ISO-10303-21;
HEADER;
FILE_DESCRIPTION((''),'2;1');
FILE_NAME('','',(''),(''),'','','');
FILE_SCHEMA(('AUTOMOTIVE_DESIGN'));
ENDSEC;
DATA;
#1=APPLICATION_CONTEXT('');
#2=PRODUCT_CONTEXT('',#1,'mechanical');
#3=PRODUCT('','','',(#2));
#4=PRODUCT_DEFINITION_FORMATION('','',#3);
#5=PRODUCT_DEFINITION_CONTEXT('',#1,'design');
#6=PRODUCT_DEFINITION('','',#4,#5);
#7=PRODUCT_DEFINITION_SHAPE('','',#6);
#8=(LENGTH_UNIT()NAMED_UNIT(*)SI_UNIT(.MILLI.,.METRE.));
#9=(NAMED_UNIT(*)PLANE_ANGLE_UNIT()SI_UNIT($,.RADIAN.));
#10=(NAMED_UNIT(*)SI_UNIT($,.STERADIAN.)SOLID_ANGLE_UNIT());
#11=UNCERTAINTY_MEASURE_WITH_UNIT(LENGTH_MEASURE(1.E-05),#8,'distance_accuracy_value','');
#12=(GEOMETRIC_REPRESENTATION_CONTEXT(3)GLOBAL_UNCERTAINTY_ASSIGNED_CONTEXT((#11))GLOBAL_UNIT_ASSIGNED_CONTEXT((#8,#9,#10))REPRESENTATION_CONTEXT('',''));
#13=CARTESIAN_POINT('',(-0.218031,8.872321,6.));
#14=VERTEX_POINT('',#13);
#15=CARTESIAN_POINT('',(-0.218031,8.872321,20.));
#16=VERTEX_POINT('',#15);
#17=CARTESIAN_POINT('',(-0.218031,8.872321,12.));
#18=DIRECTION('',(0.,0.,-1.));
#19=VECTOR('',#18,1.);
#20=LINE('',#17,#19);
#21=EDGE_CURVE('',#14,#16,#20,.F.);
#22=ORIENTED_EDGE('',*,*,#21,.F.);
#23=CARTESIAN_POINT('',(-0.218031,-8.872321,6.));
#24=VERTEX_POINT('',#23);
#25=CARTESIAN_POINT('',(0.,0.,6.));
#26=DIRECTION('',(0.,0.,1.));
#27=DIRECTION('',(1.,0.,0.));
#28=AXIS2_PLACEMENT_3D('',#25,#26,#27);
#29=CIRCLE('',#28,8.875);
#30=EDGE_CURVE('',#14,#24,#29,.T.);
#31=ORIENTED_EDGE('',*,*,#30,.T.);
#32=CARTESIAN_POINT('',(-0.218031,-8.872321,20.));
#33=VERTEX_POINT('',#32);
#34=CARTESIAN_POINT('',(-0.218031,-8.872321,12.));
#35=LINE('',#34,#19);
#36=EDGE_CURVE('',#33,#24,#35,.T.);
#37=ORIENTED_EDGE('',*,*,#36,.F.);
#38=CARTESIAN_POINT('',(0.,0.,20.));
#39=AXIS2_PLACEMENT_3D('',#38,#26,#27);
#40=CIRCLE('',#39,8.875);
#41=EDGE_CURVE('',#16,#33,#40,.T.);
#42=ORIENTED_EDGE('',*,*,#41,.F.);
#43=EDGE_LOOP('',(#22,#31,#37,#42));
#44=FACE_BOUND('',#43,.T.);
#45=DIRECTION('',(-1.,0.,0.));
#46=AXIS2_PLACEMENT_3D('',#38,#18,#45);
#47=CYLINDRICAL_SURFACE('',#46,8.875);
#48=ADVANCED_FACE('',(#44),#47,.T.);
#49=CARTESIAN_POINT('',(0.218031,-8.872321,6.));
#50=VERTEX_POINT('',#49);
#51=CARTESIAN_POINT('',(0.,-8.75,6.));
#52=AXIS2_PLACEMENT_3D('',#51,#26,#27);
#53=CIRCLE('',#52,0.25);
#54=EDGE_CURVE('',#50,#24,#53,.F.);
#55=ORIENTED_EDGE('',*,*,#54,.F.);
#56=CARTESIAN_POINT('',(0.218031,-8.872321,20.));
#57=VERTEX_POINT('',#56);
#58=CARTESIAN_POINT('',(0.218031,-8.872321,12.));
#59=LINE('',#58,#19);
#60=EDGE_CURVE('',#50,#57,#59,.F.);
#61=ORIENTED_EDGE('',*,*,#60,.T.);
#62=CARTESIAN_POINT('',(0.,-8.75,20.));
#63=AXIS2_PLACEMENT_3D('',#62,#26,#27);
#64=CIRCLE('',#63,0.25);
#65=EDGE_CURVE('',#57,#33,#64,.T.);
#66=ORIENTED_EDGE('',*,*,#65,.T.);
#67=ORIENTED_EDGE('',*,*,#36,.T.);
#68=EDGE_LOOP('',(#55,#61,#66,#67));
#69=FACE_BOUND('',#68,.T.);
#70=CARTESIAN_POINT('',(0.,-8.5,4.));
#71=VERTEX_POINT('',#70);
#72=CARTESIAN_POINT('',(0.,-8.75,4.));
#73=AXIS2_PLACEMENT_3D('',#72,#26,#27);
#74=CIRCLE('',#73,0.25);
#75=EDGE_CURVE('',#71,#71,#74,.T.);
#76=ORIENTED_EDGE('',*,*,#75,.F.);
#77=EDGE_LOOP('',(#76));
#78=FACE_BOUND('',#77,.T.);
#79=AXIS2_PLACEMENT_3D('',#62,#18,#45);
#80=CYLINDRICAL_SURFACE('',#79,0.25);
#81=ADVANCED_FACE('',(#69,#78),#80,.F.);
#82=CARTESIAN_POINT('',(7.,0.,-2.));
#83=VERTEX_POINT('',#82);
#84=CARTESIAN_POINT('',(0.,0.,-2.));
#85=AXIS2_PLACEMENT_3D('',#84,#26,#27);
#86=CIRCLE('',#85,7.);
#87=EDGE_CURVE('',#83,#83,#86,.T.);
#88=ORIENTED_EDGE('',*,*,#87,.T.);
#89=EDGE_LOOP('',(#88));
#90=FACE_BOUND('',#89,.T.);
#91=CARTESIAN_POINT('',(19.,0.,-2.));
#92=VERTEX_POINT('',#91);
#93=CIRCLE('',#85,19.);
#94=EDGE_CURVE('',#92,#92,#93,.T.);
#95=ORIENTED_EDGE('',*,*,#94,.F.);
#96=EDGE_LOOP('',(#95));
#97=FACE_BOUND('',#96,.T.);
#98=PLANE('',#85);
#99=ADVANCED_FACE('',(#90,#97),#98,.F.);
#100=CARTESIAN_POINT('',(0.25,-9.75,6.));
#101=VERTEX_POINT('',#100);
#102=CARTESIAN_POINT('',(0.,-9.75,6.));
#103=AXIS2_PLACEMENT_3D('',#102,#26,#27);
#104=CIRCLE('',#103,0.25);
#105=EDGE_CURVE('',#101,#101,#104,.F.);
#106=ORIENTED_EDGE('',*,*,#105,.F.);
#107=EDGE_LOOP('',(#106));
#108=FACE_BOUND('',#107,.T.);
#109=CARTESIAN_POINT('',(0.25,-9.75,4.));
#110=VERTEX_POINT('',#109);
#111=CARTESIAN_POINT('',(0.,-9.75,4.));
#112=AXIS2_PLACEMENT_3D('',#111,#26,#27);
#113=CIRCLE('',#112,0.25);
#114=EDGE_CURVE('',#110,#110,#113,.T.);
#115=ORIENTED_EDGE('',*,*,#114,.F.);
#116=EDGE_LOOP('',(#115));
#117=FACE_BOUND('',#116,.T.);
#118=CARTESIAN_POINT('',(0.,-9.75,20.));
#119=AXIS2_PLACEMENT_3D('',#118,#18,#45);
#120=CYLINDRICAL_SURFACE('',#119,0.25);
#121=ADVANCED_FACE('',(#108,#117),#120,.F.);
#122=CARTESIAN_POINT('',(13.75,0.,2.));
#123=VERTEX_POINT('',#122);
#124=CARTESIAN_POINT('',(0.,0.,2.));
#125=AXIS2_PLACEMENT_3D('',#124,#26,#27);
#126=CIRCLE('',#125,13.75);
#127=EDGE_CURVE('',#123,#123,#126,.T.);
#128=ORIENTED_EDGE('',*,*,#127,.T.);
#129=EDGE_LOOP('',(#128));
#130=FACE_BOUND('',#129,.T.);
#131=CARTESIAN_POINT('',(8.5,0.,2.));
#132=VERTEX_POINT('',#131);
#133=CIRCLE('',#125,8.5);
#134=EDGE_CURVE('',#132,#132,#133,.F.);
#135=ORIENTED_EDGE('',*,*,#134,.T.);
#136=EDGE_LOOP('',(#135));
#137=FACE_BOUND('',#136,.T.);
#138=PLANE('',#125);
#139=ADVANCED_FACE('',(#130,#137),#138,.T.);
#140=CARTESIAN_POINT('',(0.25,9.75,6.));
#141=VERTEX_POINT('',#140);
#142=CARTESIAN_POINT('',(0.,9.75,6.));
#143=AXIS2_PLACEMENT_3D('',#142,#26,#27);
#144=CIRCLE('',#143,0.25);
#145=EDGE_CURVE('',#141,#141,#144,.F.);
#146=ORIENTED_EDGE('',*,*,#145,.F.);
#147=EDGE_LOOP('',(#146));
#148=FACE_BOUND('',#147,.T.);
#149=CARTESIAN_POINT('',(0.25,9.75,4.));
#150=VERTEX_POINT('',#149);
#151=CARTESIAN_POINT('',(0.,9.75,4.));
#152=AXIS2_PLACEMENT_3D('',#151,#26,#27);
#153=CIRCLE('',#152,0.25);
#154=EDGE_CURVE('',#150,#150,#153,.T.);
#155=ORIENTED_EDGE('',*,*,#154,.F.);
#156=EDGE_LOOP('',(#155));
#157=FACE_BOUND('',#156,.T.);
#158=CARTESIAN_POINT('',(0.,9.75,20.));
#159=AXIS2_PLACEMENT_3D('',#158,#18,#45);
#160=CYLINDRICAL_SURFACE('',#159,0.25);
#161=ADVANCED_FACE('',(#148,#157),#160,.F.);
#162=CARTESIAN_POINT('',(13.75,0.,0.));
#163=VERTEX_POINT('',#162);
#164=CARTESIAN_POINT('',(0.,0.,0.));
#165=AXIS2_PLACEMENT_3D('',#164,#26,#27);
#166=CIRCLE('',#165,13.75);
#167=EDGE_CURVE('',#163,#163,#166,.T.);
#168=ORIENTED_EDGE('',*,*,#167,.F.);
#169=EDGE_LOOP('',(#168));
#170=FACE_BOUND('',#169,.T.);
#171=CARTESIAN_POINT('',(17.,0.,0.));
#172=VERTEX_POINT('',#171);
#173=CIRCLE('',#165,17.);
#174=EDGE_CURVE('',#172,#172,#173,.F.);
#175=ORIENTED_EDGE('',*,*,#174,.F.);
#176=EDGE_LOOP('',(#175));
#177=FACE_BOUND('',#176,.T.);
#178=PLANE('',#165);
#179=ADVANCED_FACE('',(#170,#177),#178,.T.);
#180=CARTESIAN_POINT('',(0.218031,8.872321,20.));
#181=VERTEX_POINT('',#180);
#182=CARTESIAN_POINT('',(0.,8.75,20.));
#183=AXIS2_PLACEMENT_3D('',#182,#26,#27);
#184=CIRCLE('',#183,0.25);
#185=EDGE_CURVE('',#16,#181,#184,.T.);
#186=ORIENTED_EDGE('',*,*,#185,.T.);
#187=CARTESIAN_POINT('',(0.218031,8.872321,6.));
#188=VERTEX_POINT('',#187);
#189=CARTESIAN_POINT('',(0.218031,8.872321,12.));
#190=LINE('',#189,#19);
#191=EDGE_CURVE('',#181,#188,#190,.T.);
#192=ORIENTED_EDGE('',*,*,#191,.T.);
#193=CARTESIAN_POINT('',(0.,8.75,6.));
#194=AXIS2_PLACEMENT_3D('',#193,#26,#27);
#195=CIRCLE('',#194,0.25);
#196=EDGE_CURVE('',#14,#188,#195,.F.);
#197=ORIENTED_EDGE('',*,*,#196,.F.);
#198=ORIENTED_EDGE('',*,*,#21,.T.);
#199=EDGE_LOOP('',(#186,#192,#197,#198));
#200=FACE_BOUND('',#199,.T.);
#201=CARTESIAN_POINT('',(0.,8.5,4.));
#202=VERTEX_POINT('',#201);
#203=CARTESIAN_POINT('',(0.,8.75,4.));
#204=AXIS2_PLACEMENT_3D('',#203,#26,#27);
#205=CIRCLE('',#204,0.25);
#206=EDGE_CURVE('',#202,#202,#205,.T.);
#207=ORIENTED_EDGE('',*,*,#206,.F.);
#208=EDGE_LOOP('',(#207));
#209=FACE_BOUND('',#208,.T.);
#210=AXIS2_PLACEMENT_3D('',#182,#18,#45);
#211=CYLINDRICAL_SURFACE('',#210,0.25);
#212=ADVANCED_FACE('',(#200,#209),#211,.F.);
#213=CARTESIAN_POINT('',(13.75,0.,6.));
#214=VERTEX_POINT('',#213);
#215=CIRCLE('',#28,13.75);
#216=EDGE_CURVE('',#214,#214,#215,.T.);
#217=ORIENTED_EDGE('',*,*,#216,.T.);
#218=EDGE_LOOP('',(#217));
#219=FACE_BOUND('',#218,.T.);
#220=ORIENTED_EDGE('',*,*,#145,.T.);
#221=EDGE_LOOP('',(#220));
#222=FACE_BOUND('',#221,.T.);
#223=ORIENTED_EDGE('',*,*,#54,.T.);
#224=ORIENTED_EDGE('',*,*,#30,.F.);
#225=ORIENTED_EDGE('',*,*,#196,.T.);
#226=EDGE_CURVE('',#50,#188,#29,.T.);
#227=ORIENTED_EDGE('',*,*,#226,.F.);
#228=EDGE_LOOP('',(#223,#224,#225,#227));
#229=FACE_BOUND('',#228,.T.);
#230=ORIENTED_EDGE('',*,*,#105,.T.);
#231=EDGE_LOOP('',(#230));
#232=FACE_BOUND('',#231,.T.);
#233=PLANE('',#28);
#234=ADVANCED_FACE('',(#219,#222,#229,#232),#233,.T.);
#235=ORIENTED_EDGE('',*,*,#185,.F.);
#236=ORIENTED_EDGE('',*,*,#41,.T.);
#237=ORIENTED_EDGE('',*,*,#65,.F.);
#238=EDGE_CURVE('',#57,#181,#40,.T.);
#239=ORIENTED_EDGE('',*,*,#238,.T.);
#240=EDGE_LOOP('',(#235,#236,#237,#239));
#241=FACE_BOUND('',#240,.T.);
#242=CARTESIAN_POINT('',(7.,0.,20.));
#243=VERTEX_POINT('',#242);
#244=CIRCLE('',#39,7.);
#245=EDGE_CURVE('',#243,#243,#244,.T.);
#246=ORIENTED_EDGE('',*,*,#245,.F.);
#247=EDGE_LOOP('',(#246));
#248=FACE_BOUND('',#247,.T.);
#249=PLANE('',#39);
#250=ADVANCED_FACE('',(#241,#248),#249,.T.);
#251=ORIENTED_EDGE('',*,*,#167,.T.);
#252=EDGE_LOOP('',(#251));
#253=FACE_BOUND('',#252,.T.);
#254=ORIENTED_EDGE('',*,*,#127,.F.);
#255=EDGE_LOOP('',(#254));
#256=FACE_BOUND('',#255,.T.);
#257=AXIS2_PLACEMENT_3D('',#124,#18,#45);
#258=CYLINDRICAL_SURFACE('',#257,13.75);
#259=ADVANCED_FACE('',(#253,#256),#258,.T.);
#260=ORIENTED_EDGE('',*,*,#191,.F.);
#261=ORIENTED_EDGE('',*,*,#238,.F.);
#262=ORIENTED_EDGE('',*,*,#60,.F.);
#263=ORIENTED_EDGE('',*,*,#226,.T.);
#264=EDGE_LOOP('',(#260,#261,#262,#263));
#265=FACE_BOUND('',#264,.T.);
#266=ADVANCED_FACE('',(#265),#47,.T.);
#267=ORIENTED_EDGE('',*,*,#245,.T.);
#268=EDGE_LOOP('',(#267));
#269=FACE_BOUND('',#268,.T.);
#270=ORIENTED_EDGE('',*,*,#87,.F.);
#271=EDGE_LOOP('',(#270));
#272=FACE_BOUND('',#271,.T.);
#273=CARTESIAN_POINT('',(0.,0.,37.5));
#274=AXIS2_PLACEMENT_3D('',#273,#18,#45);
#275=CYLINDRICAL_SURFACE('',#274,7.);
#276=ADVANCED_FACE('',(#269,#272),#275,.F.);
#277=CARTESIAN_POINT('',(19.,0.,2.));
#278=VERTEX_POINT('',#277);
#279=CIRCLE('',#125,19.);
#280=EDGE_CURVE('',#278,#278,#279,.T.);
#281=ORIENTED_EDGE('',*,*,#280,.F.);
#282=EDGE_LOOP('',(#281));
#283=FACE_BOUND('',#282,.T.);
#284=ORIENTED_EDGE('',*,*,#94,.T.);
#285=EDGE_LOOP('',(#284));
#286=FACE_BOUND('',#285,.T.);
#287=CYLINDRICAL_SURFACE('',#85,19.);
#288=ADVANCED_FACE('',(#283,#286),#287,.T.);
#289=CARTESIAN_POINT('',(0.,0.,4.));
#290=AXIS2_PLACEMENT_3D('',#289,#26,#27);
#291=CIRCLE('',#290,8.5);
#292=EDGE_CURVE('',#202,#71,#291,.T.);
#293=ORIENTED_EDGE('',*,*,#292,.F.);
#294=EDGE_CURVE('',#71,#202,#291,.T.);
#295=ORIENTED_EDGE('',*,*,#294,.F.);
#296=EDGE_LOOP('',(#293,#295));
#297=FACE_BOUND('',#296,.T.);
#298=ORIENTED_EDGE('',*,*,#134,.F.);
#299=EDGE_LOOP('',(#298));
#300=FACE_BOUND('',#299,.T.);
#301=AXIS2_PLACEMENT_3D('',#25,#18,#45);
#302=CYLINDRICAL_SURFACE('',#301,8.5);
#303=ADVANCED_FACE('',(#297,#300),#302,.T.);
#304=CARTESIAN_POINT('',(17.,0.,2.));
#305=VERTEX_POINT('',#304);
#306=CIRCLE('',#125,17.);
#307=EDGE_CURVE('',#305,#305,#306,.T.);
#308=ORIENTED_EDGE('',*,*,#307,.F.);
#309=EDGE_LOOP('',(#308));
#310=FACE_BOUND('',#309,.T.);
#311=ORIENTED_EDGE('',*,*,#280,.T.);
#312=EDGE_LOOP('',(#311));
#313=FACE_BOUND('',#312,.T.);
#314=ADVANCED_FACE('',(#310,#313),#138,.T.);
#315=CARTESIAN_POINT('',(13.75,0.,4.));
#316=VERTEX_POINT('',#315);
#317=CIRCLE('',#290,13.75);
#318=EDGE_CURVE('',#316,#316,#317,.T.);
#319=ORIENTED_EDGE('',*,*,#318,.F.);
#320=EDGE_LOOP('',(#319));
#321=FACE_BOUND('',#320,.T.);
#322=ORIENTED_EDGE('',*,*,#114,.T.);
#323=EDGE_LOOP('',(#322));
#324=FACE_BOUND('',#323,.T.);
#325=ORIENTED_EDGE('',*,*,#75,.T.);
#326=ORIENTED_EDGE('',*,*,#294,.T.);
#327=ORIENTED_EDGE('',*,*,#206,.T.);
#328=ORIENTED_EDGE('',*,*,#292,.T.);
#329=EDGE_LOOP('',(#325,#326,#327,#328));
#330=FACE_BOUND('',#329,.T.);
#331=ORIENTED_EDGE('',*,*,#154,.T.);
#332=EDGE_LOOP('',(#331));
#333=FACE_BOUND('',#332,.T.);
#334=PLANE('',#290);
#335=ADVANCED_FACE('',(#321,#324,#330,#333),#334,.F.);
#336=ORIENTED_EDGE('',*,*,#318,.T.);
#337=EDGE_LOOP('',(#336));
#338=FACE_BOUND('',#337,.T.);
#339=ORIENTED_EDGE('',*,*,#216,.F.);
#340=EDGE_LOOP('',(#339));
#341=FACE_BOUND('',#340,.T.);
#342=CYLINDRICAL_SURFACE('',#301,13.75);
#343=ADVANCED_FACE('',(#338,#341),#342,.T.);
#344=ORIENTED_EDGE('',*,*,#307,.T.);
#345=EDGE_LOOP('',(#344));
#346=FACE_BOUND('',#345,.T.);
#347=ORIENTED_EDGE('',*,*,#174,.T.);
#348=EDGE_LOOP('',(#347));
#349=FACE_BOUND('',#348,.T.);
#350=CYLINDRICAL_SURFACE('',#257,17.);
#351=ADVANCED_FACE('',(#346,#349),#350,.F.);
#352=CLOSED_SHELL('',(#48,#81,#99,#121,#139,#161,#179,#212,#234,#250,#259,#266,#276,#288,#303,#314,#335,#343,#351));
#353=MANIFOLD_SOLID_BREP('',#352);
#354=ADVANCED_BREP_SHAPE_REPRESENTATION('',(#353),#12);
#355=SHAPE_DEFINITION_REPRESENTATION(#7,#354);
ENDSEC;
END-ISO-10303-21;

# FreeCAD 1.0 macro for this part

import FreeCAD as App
import Part
import Sketcher

V = App.Vector

doc = App.newDocument("Part")
body = doc.addObject("PartDesign::Body", "Body")

sketch1 = body.newObject("Sketcher::SketchObject", "Sketch")
sketch1.AttachmentSupport = (doc.getObject("XY_Plane"), [""])
sketch1.MapMode = "FlatFace"
sketch1.addGeometry(Part.Circle(V(0, 0, 0), V(0, 0, 1), 13.75), False)
sketch1.addConstraint([
    Sketcher.Constraint("Coincident", 0, 3, -1, 1),
    Sketcher.Constraint("Diameter", 0, 27.5),
])
pad1 = body.newObject("PartDesign::Pad", "Pad")
pad1.Profile = sketch1
pad1.Length = 2

sketch2 = body.newObject("Sketcher::SketchObject", "Sketch001")
sketch2.AttachmentSupport = (doc.getObject("XY_Plane"), [""])
sketch2.MapMode = "FlatFace"
sketch2.addGeometry(Part.Circle(V(0, 0, 0), V(0, 0, 1), 8.5), False)
sketch2.addConstraint([
    Sketcher.Constraint("Coincident", 0, 3, -1, 1),
    Sketcher.Constraint("Diameter", 0, 17.0),
])
pad2 = body.newObject("PartDesign::Pad", "Pad001")
pad2.Profile = sketch2
pad2.Length = 6

sketch3 = body.newObject("Sketcher::SketchObject", "Sketch002")
sketch3.AttachmentSupport = (doc.getObject("XY_Plane"), [""])
sketch3.MapMode = "FlatFace"
sketch3.AttachmentOffset = App.Placement(V(0, 0, 4), App.Rotation())
sketch3.addGeometry(Part.Circle(V(0, 0, 0), V(0, 0, 1), 13.75), False)
sketch3.addConstraint([
    Sketcher.Constraint("Coincident", 0, 3, -1, 1),
    Sketcher.Constraint("Diameter", 0, 27.5),
])
pad3 = body.newObject("PartDesign::Pad", "Pad002")
pad3.Profile = sketch3
pad3.Length = 2

sketch4 = body.newObject("Sketcher::SketchObject", "Sketch003")
sketch4.AttachmentSupport = (doc.getObject("XY_Plane"), [""])
sketch4.MapMode = "FlatFace"
sketch4.addGeometry(Part.Circle(V(0, 0, 0), V(0, 0, 1), 7), False)
sketch4.addConstraint([
    Sketcher.Constraint("Coincident", 0, 3, -1, 1),
    Sketcher.Constraint("Diameter", 0, 14.0),
])
pocket1 = body.newObject("PartDesign::Pocket", "Pocket")
pocket1.Profile = sketch4
pocket1.Length = 75
pocket1.Midplane = True

sketch5 = body.newObject("Sketcher::SketchObject", "Sketch004")
sketch5.AttachmentSupport = (doc.getObject("XY_Plane"), [""])
sketch5.MapMode = "FlatFace"
sketch5.AttachmentOffset = App.Placement(V(0, 0, 20), App.Rotation())
sketch5.addGeometry([
    Part.Circle(V(0, 0, 0), V(0, 0, 1), 8.875),
    Part.Circle(V(0, 0, 0), V(0, 0, 1), 7),
], False)
sketch5.addConstraint([
    Sketcher.Constraint("Coincident", 0, 3, -1, 1),
    Sketcher.Constraint("Coincident", 1, 3, -1, 1),
    Sketcher.Constraint("Diameter", 1, 14.0),
    Sketcher.Constraint("Diameter", 0, 17.75),
])
pad4 = body.newObject("PartDesign::Pad", "Pad003")
pad4.Profile = sketch5
pad4.Length = 14
pad4.Reversed = True

sketch6 = body.newObject("Sketcher::SketchObject", "Sketch005")
sketch6.AttachmentSupport = (doc.getObject("XY_Plane"), [""])
sketch6.MapMode = "FlatFace"
sketch6.AttachmentOffset = App.Placement(V(0, 0, 4), App.Rotation())
sketch6.addGeometry([
    Part.Circle(V(0, 9.75, 0), V(0, 0, 1), 0.25),
    Part.Circle(V(0, -9.75, 0), V(0, 0, 1), 0.25),
    Part.Circle(V(0, 8.75, 0), V(0, 0, 1), 0.25),
    Part.Circle(V(0, -8.75, 0), V(0, 0, 1), 0.25),
], False)
sketch6.addConstraint([
    Sketcher.Constraint("Equal", 0, 1),
    Sketcher.Constraint("Equal", 1, 2),
    Sketcher.Constraint("Equal", 2, 3),
    Sketcher.Constraint("Symmetric", 0, 3, 1, 3, -1, 1),
    Sketcher.Constraint("Symmetric", 2, 3, 3, 3, -1, 1),
    Sketcher.Constraint("PointOnObject", 0, 3, -2),
    Sketcher.Constraint("PointOnObject", 2, 3, -2),
    Sketcher.Constraint("Diameter", 0, 0.5),
    Sketcher.Constraint("DistanceY", 2, 3, 0, 3, 1.0),
    Sketcher.Constraint("DistanceY", 1, 3, 0, 3, 19.5),
])
pocket2 = body.newObject("PartDesign::Pocket", "Pocket001")
pocket2.Profile = sketch6
pocket2.Type = "ThroughAll"
pocket2.Reversed = True

sketch7 = body.newObject("Sketcher::SketchObject", "Sketch006")
sketch7.AttachmentSupport = (doc.getObject("XY_Plane"), [""])
sketch7.MapMode = "FlatFace"
sketch7.addGeometry(Part.Circle(V(0, 0, 0), V(0, 0, 1), 19), False)
sketch7.addConstraint([
    Sketcher.Constraint("Coincident", 0, 3, -1, 1),
    Sketcher.Constraint("Diameter", 0, 38.0),
])
pad5 = body.newObject("PartDesign::Pad", "Pad004")
pad5.Profile = sketch7
pad5.Length = 2
pad5.Reversed = True

sketch8 = body.newObject("Sketcher::SketchObject", "Sketch007")
sketch8.AttachmentSupport = (doc.getObject("XY_Plane"), [""])
sketch8.MapMode = "FlatFace"
sketch8.addGeometry(Part.Circle(V(0, 0, 0), V(0, 0, 1), 7), False)
sketch8.addConstraint([
    Sketcher.Constraint("Coincident", 0, 3, -1, 1),
    Sketcher.Constraint("Diameter", 0, 14.0),
])
pocket3 = body.newObject("PartDesign::Pocket", "Pocket002")
pocket3.Profile = sketch8
pocket3.Length = 2

sketch9 = body.newObject("Sketcher::SketchObject", "Sketch008")
sketch9.AttachmentSupport = (doc.getObject("XY_Plane"), [""])
sketch9.MapMode = "FlatFace"
sketch9.AttachmentOffset = App.Placement(V(0, 0, 2), App.Rotation())
sketch9.addGeometry([
    Part.Circle(V(0, 0, 0), V(0, 0, 1), 19),
    Part.Circle(V(0, 0, 0), V(0, 0, 1), 17),
], False)
sketch9.addConstraint([
    Sketcher.Constraint("Coincident", 0, 3, -1, 1),
    Sketcher.Constraint("Coincident", 1, 3, -1, 1),
    Sketcher.Constraint("Diameter", 0, 38.0),
    Sketcher.Constraint("Diameter", 1, 34.0),
])
pad6 = body.newObject("PartDesign::Pad", "Pad005")
pad6.Profile = sketch9
pad6.Length = 2
pad6.Reversed = True

doc.recompute()
